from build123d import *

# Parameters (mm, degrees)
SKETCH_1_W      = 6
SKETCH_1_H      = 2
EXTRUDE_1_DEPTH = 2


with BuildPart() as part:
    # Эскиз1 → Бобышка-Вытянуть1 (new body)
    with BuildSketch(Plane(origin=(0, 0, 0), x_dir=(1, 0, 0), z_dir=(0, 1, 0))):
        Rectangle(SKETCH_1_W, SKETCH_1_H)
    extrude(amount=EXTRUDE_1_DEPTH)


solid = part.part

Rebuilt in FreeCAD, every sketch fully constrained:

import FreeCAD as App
import Part
import Sketcher

doc = App.newDocument("Part")
body = doc.addObject("PartDesign::Body", "Body")

sketch1 = body.newObject("Sketcher::SketchObject", "Sketch")
sketch1.AttachmentSupport = (doc.getObject("XZ_Plane"), [""])
sketch1.MapMode = "FlatFace"
sketch1.addGeometry([
    Part.LineSegment(App.Vector(-3, -1, 0), App.Vector(-3, 1, 0)),
    Part.LineSegment(App.Vector(-3, 1, 0), App.Vector(3, 1, 0)),
    Part.LineSegment(App.Vector(3, 1, 0), App.Vector(3, -1, 0)),
    Part.LineSegment(App.Vector(3, -1, 0), App.Vector(-3, -1, 0)),
], False)
sketch1.addConstraint([
    Sketcher.Constraint("Coincident", 0, 2, 1, 1),
    Sketcher.Constraint("Coincident", 1, 2, 2, 1),
    Sketcher.Constraint("Coincident", 2, 2, 3, 1),
    Sketcher.Constraint("Coincident", 3, 2, 0, 1),
    Sketcher.Constraint("Vertical", 0),
    Sketcher.Constraint("Horizontal", 1),
    Sketcher.Constraint("Vertical", 2),
    Sketcher.Constraint("Horizontal", 3),
    Sketcher.Constraint("Symmetric", 0, 2, 2, 2, -1, 1),
    Sketcher.Constraint("DistanceX", 1, 1, 1, 2, 6.0),
    Sketcher.Constraint("DistanceY", 0, 1, 0, 2, 2.0),
])
pad1 = body.newObject("PartDesign::Pad", "Pad")
pad1.Profile = sketch1
pad1.Length = 2
pad1.Reversed = True

doc.recompute()
